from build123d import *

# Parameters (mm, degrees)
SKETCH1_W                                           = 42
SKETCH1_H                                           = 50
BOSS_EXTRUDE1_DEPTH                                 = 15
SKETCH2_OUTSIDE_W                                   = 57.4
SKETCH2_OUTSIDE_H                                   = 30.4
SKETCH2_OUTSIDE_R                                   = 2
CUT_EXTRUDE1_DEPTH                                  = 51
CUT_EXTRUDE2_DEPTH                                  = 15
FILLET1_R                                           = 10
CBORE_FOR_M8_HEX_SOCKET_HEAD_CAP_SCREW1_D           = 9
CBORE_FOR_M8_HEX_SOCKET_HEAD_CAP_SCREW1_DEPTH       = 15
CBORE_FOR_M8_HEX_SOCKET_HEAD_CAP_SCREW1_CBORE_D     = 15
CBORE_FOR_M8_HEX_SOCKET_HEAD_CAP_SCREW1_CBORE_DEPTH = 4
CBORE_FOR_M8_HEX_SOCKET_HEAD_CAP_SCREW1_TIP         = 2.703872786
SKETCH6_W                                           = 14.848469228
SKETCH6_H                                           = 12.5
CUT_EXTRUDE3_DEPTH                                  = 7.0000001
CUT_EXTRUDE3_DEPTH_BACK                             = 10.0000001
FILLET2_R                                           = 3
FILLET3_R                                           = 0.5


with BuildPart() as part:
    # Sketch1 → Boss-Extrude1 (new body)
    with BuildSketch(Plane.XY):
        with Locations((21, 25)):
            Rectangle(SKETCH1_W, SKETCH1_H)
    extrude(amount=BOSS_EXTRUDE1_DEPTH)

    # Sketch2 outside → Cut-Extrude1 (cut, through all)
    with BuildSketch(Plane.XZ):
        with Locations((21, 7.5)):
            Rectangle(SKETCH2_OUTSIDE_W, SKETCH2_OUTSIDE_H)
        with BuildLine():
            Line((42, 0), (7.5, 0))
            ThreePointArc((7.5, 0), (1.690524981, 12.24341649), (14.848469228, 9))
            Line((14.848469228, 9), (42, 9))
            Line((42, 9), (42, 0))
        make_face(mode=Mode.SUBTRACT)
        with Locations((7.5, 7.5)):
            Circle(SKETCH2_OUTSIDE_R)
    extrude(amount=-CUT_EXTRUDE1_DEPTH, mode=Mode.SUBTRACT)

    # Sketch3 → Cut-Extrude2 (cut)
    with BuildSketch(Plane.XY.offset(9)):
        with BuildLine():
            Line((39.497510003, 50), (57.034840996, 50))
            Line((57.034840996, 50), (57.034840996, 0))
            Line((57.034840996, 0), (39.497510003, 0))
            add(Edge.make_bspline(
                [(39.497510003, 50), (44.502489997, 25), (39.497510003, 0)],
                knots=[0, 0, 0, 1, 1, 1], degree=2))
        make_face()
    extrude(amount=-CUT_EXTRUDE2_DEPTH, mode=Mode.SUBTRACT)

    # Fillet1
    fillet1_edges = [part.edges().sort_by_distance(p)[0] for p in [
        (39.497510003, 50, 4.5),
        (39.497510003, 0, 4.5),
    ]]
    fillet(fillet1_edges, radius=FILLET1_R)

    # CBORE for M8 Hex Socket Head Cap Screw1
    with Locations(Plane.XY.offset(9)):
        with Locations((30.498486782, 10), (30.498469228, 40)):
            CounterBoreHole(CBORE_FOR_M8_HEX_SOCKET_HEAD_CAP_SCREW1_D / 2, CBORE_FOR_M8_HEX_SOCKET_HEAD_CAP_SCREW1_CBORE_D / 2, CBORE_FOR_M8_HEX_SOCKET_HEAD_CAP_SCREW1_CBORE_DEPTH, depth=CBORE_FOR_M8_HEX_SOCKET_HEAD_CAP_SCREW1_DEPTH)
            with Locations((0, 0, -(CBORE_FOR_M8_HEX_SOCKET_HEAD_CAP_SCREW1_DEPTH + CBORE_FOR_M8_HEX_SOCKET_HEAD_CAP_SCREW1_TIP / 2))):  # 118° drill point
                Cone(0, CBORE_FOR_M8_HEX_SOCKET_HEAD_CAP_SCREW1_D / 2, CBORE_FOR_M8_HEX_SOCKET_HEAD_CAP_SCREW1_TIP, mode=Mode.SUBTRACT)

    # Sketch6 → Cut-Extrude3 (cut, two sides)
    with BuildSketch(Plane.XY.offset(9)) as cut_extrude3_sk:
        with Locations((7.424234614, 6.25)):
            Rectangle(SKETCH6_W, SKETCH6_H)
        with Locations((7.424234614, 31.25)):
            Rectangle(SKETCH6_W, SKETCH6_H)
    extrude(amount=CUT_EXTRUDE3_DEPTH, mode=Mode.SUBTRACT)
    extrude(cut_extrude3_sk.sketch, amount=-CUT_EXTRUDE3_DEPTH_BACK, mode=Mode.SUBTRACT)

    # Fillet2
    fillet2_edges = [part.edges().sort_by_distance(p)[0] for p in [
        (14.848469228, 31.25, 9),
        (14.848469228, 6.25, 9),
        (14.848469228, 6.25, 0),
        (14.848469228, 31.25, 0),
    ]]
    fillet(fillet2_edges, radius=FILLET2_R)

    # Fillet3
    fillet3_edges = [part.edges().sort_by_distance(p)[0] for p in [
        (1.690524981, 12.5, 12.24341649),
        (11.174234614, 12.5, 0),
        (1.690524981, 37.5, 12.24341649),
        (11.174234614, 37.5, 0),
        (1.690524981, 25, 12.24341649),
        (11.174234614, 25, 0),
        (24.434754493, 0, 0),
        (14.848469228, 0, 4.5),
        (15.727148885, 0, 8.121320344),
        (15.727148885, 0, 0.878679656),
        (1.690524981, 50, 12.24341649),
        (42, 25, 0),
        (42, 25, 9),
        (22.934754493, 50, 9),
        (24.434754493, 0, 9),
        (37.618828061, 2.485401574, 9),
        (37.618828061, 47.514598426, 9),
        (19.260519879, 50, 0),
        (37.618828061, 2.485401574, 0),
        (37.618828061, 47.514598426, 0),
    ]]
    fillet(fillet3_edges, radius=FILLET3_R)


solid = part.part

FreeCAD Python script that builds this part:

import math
import FreeCAD as App
import Part
import Sketcher


def edges_at(feature, points):
    """Names of the edges that pass closest to the given points."""
    edges = feature.Shape.Edges
    near = lambda p: min(range(len(edges)), key=lambda i: edges[i].distToShape(Part.Vertex(*p))[0])
    return sorted({f"Edge{near(p) + 1}" for p in points})

doc = App.newDocument("Part")
body = doc.addObject("PartDesign::Body", "Body")

sketch1 = doc.addObject("Sketcher::SketchObject", "Sketch")
body.addObject(sketch1)
sketch1.AttachmentSupport = (doc.XY_Plane, [""])
sketch1.MapMode = "FlatFace"
sketch1.addGeometry([
    Part.LineSegment(App.Vector(0, 50, 0), App.Vector(0, 0, 0)),
    Part.LineSegment(App.Vector(0, 0, 0), App.Vector(42, 0, 0)),
    Part.LineSegment(App.Vector(42, 0, 0), App.Vector(42, 50, 0)),
    Part.LineSegment(App.Vector(42, 50, 0), App.Vector(0, 50, 0)),
], False)
sketch1.addConstraint([
    Sketcher.Constraint("Coincident", 0, 2, 1, 1),
    Sketcher.Constraint("Coincident", 1, 2, 2, 1),
    Sketcher.Constraint("Coincident", 2, 2, 3, 1),
    Sketcher.Constraint("Coincident", 3, 2, 0, 1),
    Sketcher.Constraint("Vertical", 0),
    Sketcher.Constraint("Horizontal", 1),
    Sketcher.Constraint("Vertical", 2),
    Sketcher.Constraint("Horizontal", 3),
    Sketcher.Constraint("Coincident", 0, 2, -1, 1),
    Sketcher.Constraint("DistanceX", 1, 1, 1, 2, 42.0),
    Sketcher.Constraint("DistanceY", 0, 2, 0, 1, 50.0),
])
pad1 = doc.addObject("PartDesign::Pad", "Pad")
body.addObject(pad1)
pad1.Profile = sketch1
pad1.Length = 15

sketch2 = doc.addObject("Sketcher::SketchObject", "Sketch001")
body.addObject(sketch2)
sketch2.AttachmentSupport = (doc.XZ_Plane, [""])
sketch2.MapMode = "FlatFace"
sketch2.addGeometry([
    Part.LineSegment(App.Vector(-7.7, 22.7, 0), App.Vector(-7.7, -7.7, 0)),
    Part.LineSegment(App.Vector(-7.7, -7.7, 0), App.Vector(49.7, -7.7, 0)),
    Part.LineSegment(App.Vector(49.7, -7.7, 0), App.Vector(49.7, 22.7, 0)),
    Part.LineSegment(App.Vector(49.7, 22.7, 0), App.Vector(-7.7, 22.7, 0)),
    Part.LineSegment(App.Vector(42, 9, 0), App.Vector(42, 0, 0)),
    Part.LineSegment(App.Vector(42, 0, 0), App.Vector(7.5, 0, 0)),
    Part.ArcOfCircle(Part.Circle(App.Vector(7.5, 7.5, 0), App.Vector(0, 0, 1), 7.5), math.radians(12), math.radians(270)),
    Part.LineSegment(App.Vector(14.8, 9, 0), App.Vector(42, 9, 0)),
    Part.Circle(App.Vector(7.5, 7.5, 0), App.Vector(0, 0, 1), 2),
], False)
sketch2.addConstraint([
    Sketcher.Constraint("Coincident", 0, 2, 1, 1),
    Sketcher.Constraint("Coincident", 1, 2, 2, 1),
    Sketcher.Constraint("Coincident", 2, 2, 3, 1),
    Sketcher.Constraint("Coincident", 3, 2, 0, 1),
    Sketcher.Constraint("Coincident", 4, 2, 5, 1),
    Sketcher.Constraint("Tangent", 5, 2, 6, 2),
    Sketcher.Constraint("Coincident", 6, 1, 7, 1),
    Sketcher.Constraint("Coincident", 7, 2, 4, 1),
    Sketcher.Constraint("Vertical", 0),
    Sketcher.Constraint("Horizontal", 1),
    Sketcher.Constraint("Vertical", 2),
    Sketcher.Constraint("Horizontal", 3),
    Sketcher.Constraint("Vertical", 4),
    Sketcher.Constraint("Horizontal", 5),
    Sketcher.Constraint("Horizontal", 7),
    Sketcher.Constraint("Coincident", 8, 3, 6, 3),
    Sketcher.Constraint("PointOnObject", 4, 2, -1),
    Sketcher.Constraint("Diameter", 8, 4.0),
    Sketcher.Constraint("Radius", 6, 7.5),
    Sketcher.Constraint("DistanceY", 4, 2, 4, 1, 9.0),
    Sketcher.Constraint("DistanceX", 1, 1, 1, 2, 57.4),
    Sketcher.Constraint("DistanceX", 5, 2, 5, 1, 34.5),
    Sketcher.Constraint("DistanceY", 0, 2, 0, 1, 30.4),
    Sketcher.Constraint("DistanceX", -1, 1, 4, 2, 42.0),
    Sketcher.Constraint("DistanceX", 0, 2, -1, 1, 7.7),
    Sketcher.Constraint("DistanceY", 0, 2, -1, 1, 7.7),
])
pocket1 = doc.addObject("PartDesign::Pocket", "Pocket")
body.addObject(pocket1)
pocket1.Profile = sketch2
pocket1.Type = "ThroughAll"

sketch3 = doc.addObject("Sketcher::SketchObject", "Sketch002")
body.addObject(sketch3)
sketch3.AttachmentSupport = (doc.XY_Plane, [""])
sketch3.MapMode = "FlatFace"
sketch3.AttachmentOffset = App.Placement(App.Vector(0, 0, 9), App.Rotation())
sketch3.addGeometry([
    Part.LineSegment(App.Vector(57.034841, 50, 0), App.Vector(39.49751, 50, 0)),
    Part.BSplineCurve([App.Vector(39.49751, 50, 0), App.Vector(44.50249, 25, 0), App.Vector(39.49751, 0, 0)], [3, 3], [0, 1], False, 2, [1, 1, 1], False),
    Part.LineSegment(App.Vector(39.49751, 0, 0), App.Vector(57.034841, 0, 0)),
    Part.LineSegment(App.Vector(57.034841, 0, 0), App.Vector(57.034841, 50, 0)),
], False)
sketch3.addConstraint([
    Sketcher.Constraint("Block", 1),
    Sketcher.Constraint("Coincident", 0, 2, 1, 1),
    Sketcher.Constraint("Coincident", 1, 2, 2, 1),
    Sketcher.Constraint("Coincident", 2, 2, 3, 1),
    Sketcher.Constraint("Coincident", 3, 2, 0, 1),
    Sketcher.Constraint("Horizontal", 0),
    Sketcher.Constraint("Horizontal", 2),
    Sketcher.Constraint("Vertical", 3),
    Sketcher.Constraint("DistanceX", 0, 2, 0, 1, 17.537331),
])
pocket2 = doc.addObject("PartDesign::Pocket", "Pocket001")
body.addObject(pocket2)
pocket2.Profile = sketch3
pocket2.Length = 15
doc.recompute()

fillet = doc.addObject("PartDesign::Fillet", "Fillet")
body.addObject(fillet)
fillet.Base = (pocket2, edges_at(pocket2, [(39.498, 50, 4.5), (39.498, 0, 4.5)]))
fillet.Radius = 10

sketch4 = doc.addObject("Sketcher::SketchObject", "Sketch003")
body.addObject(sketch4)
sketch4.AttachmentSupport = (doc.XY_Plane, [""])
sketch4.MapMode = "FlatFace"
sketch4.AttachmentOffset = App.Placement(App.Vector(0, 0, 9), App.Rotation())
sketch4.addGeometry([
    Part.Circle(App.Vector(30.5, 10, 0), App.Vector(0, 0, 1), 4.5),
    Part.Circle(App.Vector(30.5, 40, 0), App.Vector(0, 0, 1), 4.5),
], False)
sketch4.addConstraint([
    Sketcher.Constraint("Equal", 0, 1),
    Sketcher.Constraint("Diameter", 0, 9.0),
    Sketcher.Constraint("DistanceY", -1, 1, 0, 3, 10.0),
    Sketcher.Constraint("DistanceY", -1, 1, 1, 3, 40.0),
    Sketcher.Constraint("DistanceX", -1, 1, 1, 3, 30.498469),
    Sketcher.Constraint("DistanceX", -1, 1, 0, 3, 30.498487),
])
doc.recompute()
hole = doc.addObject("PartDesign::Hole", "Hole")
body.addObject(hole)
hole.Profile = sketch4
hole.ThreadType = "None"
hole.Diameter = 9
hole.DepthType = "Dimension"
hole.Depth = 15
hole.DrillPoint = "Angled"
hole.DrillPointAngle = 118
hole.HoleCutType = "Counterbore"
hole.HoleCutDiameter = 15
hole.HoleCutDepth = 4

sketch5 = doc.addObject("Sketcher::SketchObject", "Sketch004")
body.addObject(sketch5)
sketch5.AttachmentSupport = (doc.XY_Plane, [""])
sketch5.MapMode = "FlatFace"
sketch5.AttachmentOffset = App.Placement(App.Vector(0, 0, 9), App.Rotation())
sketch5.addGeometry([
    Part.LineSegment(App.Vector(0, 12, 0), App.Vector(0, 0, 0)),
    Part.LineSegment(App.Vector(0, 0, 0), App.Vector(15, 0, 0)),
    Part.LineSegment(App.Vector(15, 0, 0), App.Vector(15, 12, 0)),
    Part.LineSegment(App.Vector(15, 12, 0), App.Vector(0, 12, 0)),
    Part.LineSegment(App.Vector(0, 38, 0), App.Vector(0, 25, 0)),
    Part.LineSegment(App.Vector(0, 25, 0), App.Vector(15, 25, 0)),
    Part.LineSegment(App.Vector(15, 25, 0), App.Vector(15, 38, 0)),
    Part.LineSegment(App.Vector(15, 38, 0), App.Vector(0, 38, 0)),
], False)
sketch5.addConstraint([
    Sketcher.Constraint("Coincident", 0, 2, 1, 1),
    Sketcher.Constraint("Coincident", 1, 2, 2, 1),
    Sketcher.Constraint("Coincident", 2, 2, 3, 1),
    Sketcher.Constraint("Coincident", 3, 2, 0, 1),
    Sketcher.Constraint("Coincident", 4, 2, 5, 1),
    Sketcher.Constraint("Coincident", 5, 2, 6, 1),
    Sketcher.Constraint("Coincident", 6, 2, 7, 1),
    Sketcher.Constraint("Coincident", 7, 2, 4, 1),
    Sketcher.Constraint("Vertical", 0),
    Sketcher.Constraint("Horizontal", 1),
    Sketcher.Constraint("Vertical", 2),
    Sketcher.Constraint("Horizontal", 3),
    Sketcher.Constraint("Vertical", 4),
    Sketcher.Constraint("Horizontal", 5),
    Sketcher.Constraint("Vertical", 6),
    Sketcher.Constraint("Horizontal", 7),
    Sketcher.Constraint("Coincident", 0, 2, -1, 1),
    Sketcher.Constraint("PointOnObject", 4, 2, -2),
    Sketcher.Constraint("Vertical", 2, 2, 5, 2),
    Sketcher.Constraint("Equal", 2, 4),
    Sketcher.Constraint("DistanceY", 0, 2, 0, 1, 12.5),
    Sketcher.Constraint("DistanceY", -1, 1, 4, 2, 25.0),
    Sketcher.Constraint("DistanceX", 1, 1, 1, 2, 14.848469),
])
pocket3 = doc.addObject("PartDesign::Pocket", "Pocket002")
body.addObject(pocket3)
pocket3.Profile = sketch5
pocket3.Type = "ThroughAll"
pocket3.Midplane = True
doc.recompute()

fillet2 = doc.addObject("PartDesign::Fillet", "Fillet001")
body.addObject(fillet2)
fillet2.Base = (pocket3, edges_at(pocket3, [
    (14.848, 31.25, 9),
    (14.848, 6.25, 9),
    (14.848, 6.25, 0),
    (14.848, 31.25, 0),
]))
fillet2.Radius = 3
doc.recompute()

fillet3 = doc.addObject("PartDesign::Fillet", "Fillet002")
body.addObject(fillet3)
fillet3.Base = (fillet2, edges_at(fillet2, [
    (1.691, 12.5, 12.243),
    (12.674, 12.5, 0),
    (1.691, 37.5, 12.243),
    (12.674, 37.5, 0),
    (1.691, 25, 12.243),
    (12.674, 25, 0),
    (24.435, 0, 0),
    (14.848, 0, 4.5),
    (15.727, 0, 8.121),
    (15.727, 0, 0.879),
    (1.691, 50, 12.243),
    (42, 25, 0),
    (42, 25, 9),
    (22.935, 50, 9),
    (24.435, 0, 9),
    (37.619, 2.485, 9),
    (37.619, 47.515, 9),
    (19.261, 50, 0),
    (37.619, 2.485, 0),
    (37.619, 47.515, 0),
]))
fillet3.Radius = 0.5

doc.recompute()
